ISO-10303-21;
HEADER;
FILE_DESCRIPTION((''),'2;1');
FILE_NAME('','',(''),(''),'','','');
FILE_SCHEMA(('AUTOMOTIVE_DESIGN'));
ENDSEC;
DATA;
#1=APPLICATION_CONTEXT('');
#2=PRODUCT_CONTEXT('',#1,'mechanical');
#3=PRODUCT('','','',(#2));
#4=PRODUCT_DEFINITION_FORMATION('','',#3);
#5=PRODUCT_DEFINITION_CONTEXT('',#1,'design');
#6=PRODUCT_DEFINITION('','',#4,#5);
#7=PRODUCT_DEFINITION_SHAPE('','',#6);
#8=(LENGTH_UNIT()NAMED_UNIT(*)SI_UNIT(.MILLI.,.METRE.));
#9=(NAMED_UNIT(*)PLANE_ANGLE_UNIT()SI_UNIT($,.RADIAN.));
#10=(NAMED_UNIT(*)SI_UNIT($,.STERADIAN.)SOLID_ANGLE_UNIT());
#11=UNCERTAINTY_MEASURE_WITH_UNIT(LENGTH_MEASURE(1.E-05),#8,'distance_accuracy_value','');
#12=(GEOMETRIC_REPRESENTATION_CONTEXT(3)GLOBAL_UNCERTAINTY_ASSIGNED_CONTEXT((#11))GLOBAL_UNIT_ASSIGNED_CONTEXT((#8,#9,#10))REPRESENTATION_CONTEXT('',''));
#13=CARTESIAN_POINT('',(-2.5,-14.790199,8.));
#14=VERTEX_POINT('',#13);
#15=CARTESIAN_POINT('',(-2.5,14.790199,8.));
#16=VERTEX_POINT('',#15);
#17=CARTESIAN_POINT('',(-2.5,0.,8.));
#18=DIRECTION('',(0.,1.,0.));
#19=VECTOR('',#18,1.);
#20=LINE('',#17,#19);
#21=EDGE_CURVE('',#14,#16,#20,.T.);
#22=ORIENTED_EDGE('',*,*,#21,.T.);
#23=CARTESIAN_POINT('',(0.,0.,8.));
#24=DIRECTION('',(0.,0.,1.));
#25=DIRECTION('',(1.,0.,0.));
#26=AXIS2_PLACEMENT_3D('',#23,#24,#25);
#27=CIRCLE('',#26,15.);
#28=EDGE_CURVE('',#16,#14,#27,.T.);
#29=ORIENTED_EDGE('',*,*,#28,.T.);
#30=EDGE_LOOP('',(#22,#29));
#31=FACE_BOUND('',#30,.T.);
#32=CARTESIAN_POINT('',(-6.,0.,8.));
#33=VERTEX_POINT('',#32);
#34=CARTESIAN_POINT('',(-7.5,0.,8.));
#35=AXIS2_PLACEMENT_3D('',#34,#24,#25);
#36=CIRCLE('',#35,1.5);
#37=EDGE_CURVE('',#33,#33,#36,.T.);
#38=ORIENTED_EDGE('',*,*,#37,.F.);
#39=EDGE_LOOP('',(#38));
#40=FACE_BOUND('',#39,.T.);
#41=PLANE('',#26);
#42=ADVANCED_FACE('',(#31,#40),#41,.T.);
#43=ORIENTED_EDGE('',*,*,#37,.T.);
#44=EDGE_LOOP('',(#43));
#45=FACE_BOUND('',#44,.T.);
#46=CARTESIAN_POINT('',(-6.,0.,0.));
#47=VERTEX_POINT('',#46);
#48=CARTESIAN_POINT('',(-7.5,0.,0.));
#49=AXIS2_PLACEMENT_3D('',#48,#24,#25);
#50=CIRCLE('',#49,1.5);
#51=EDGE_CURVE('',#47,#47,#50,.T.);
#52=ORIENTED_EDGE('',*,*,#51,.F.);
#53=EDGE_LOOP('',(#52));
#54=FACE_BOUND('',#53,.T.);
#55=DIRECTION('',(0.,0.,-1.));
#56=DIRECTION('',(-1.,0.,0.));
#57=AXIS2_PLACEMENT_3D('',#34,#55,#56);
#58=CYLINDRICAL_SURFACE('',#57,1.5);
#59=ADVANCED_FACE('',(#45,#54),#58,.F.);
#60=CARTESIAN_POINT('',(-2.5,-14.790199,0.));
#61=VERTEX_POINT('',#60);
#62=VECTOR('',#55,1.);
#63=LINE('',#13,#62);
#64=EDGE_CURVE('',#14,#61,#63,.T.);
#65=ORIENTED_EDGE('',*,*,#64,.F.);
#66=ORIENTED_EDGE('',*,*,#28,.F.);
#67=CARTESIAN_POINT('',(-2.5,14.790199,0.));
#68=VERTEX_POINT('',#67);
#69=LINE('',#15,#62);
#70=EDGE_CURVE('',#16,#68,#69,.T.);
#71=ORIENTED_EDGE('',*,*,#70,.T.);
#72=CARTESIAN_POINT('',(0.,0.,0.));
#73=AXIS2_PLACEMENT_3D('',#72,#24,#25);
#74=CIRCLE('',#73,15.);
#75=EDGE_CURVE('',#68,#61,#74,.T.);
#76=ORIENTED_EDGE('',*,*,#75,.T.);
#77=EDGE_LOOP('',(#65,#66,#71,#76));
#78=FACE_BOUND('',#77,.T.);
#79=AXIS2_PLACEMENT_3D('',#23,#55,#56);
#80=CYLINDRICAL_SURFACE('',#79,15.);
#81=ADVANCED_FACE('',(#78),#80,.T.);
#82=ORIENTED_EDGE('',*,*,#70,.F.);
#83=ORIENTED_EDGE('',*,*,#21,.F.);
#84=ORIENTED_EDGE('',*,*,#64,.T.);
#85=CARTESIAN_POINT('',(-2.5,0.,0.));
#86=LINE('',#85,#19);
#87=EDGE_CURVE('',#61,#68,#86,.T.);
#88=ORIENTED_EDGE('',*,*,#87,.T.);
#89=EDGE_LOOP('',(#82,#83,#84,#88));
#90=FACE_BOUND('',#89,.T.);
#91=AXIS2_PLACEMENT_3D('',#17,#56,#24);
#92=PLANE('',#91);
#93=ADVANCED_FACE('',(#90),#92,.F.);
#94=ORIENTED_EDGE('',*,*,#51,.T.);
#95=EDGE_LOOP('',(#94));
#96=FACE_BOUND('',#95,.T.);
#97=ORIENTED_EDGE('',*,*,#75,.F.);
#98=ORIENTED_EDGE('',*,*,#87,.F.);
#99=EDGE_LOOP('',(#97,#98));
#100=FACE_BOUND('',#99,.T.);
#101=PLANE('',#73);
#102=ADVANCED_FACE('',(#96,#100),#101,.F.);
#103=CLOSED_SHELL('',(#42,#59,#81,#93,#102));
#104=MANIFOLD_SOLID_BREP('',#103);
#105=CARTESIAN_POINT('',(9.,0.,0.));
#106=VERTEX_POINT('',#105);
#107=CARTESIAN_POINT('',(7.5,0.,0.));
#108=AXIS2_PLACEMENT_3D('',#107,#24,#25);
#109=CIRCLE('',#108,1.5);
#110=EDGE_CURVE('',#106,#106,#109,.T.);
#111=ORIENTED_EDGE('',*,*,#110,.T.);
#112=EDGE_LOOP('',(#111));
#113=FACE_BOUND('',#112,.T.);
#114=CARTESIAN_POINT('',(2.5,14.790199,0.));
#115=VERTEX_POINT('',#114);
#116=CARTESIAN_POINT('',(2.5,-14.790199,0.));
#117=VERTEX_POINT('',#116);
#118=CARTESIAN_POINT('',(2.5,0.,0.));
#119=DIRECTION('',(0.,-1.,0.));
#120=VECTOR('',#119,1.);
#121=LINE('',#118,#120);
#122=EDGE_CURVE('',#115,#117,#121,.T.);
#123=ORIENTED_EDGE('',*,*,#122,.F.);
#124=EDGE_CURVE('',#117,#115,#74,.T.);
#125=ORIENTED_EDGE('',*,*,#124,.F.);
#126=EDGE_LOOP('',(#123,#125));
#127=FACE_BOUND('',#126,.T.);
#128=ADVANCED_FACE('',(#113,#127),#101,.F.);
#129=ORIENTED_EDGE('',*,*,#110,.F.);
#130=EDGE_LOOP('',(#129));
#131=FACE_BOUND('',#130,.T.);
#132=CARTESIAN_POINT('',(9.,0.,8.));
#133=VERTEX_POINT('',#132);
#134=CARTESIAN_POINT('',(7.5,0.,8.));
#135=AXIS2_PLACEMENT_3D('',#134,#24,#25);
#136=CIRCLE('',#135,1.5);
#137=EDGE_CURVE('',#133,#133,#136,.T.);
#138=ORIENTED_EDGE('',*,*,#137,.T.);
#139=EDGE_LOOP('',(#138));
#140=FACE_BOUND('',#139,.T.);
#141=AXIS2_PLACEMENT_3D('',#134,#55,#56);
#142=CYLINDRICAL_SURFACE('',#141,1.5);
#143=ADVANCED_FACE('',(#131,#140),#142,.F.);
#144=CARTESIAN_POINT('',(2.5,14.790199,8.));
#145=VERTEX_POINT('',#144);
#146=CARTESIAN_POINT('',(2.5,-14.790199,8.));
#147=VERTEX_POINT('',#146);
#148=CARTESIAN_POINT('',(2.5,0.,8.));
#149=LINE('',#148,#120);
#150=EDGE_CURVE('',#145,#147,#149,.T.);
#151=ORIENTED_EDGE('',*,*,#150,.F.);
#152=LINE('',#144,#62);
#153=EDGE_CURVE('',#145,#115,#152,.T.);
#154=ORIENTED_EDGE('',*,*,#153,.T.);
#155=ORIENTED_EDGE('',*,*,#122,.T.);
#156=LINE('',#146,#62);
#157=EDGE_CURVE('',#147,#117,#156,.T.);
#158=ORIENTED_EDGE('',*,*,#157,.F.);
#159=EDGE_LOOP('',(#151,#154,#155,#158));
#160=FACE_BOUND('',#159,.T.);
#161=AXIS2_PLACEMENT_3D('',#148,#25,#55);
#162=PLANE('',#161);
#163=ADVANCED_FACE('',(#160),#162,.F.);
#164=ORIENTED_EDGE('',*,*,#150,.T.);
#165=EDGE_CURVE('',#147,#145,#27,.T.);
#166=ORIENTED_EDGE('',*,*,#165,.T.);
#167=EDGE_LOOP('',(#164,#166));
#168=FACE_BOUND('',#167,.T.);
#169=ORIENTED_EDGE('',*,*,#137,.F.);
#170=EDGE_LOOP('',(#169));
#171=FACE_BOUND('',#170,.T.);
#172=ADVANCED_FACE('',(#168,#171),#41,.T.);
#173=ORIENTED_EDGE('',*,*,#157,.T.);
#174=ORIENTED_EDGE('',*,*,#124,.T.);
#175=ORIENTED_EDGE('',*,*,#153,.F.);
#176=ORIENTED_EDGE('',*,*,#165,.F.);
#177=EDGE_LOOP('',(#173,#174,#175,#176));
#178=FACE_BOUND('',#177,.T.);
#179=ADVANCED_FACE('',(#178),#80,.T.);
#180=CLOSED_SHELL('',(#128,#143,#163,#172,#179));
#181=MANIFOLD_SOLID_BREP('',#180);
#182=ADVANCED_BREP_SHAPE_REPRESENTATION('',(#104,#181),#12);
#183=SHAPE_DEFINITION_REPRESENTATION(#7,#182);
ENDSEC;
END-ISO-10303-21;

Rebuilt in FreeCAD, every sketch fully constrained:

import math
import FreeCAD as App
import Part
import Sketcher
from FreeCAD import Vector

doc = App.newDocument("Part")
body = doc.addObject("PartDesign::Body", "Body")

# Sketch on XY plane
sketch1 = doc.addObject("Sketcher::SketchObject", "Sketch")
body.addObject(sketch1)
sketch1.AttachmentSupport = (doc.XY_Plane, [""])
sketch1.MapMode = "FlatFace"
sketch1.addGeometry(Part.ArcOfCircle(Part.Circle(Vector(0, 0, 0), Vector(0, 0, 1), 15), math.radians(-80.405932), math.radians(80.405932)), False)
sketch1.addGeometry(Part.LineSegment(Vector(2.5, 14.790199, 0), Vector(2.5, -14.790199, 0)), False)
sketch1.addGeometry(Part.Circle(Vector(7.5, 0, 0), Vector(0, 0, 1), 1.5), False)
sketch1.addConstraint(Sketcher.Constraint("Coincident", 0, 1, 1, 2))
sketch1.addConstraint(Sketcher.Constraint("Coincident", 1, 1, 0, 2))
sketch1.addConstraint(Sketcher.Constraint("Vertical", 1))
sketch1.addConstraint(Sketcher.Constraint("Coincident", 0, 3, -1, 1))
sketch1.addConstraint(Sketcher.Constraint("PointOnObject", 2, 3, -1))
sketch1.addConstraint(Sketcher.Constraint("Diameter", 2, 3.0))
sketch1.addConstraint(Sketcher.Constraint("Radius", 0, 15.0))
sketch1.addConstraint(Sketcher.Constraint("DistanceX", 0, 1, 2, 3, 5.0))
sketch1.addConstraint(Sketcher.Constraint("DistanceX", -1, 1, 2, 3, 7.5))
pad1 = doc.addObject("PartDesign::Pad", "Pad")
body.addObject(pad1)
pad1.Profile = sketch1
pad1.Length = 8
body2 = doc.addObject("PartDesign::Body", "Body001")

# Sketch on XY plane
sketch2 = doc.addObject("Sketcher::SketchObject", "Sketch001")
body2.addObject(sketch2)
sketch2.AttachmentSupport = (doc.getObject("XY_Plane001"), [""])
sketch2.MapMode = "FlatFace"
sketch2.addGeometry(Part.ArcOfCircle(Part.Circle(Vector(0, 0, 0), Vector(0, 0, 1), 15), math.radians(99.594068), math.radians(260.405932)), False)
sketch2.addGeometry(Part.LineSegment(Vector(-2.5, -14.790199, 0), Vector(-2.5, 14.790199, 0)), False)
sketch2.addGeometry(Part.Circle(Vector(-7.5, 0, 0), Vector(0, 0, 1), 1.5), False)
sketch2.addConstraint(Sketcher.Constraint("Coincident", 0, 1, 1, 2))
sketch2.addConstraint(Sketcher.Constraint("Coincident", 1, 1, 0, 2))
sketch2.addConstraint(Sketcher.Constraint("Vertical", 1))
sketch2.addConstraint(Sketcher.Constraint("Coincident", 0, 3, -1, 1))
sketch2.addConstraint(Sketcher.Constraint("PointOnObject", 2, 3, -1))
sketch2.addConstraint(Sketcher.Constraint("Diameter", 2, 3.0))
sketch2.addConstraint(Sketcher.Constraint("Radius", 0, 15.0))
sketch2.addConstraint(Sketcher.Constraint("DistanceX", 2, 3, 0, 1, 5.0))
sketch2.addConstraint(Sketcher.Constraint("DistanceX", 2, 3, -1, 1, 7.5))
pad2 = doc.addObject("PartDesign::Pad", "Pad001")
body2.addObject(pad2)
pad2.Profile = sketch2
pad2.Length = 8

doc.recompute()
